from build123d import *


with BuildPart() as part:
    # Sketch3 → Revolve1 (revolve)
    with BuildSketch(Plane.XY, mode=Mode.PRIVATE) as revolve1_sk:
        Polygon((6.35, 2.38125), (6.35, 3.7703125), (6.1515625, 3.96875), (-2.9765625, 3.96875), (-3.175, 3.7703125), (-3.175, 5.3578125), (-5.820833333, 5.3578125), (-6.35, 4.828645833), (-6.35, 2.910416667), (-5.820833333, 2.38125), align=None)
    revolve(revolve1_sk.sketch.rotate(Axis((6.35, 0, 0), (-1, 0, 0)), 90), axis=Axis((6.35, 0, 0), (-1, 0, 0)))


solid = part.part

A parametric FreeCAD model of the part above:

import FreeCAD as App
import Part
import Sketcher
from FreeCAD import Vector
Q = App.Units.Quantity

doc = App.newDocument("Part")
body = doc.addObject("PartDesign::Body", "Body")

# Sketch on XY plane
sketch1 = body.newObject("Sketcher::SketchObject", "Sketch")
sketch1.AttachmentSupport = (doc.getObject("XY_Plane"), [""])
sketch1.MapMode = "FlatFace"
sketch1.addGeometry([
    Part.LineSegment(Vector(6.35, 2.38, 0), Vector(6.35, 3.77, 0)),  # 0
    Part.LineSegment(Vector(6.35, 3.77, 0), Vector(6.15, 3.97, 0)),  # 1
    Part.LineSegment(Vector(6.15, 3.97, 0), Vector(-2.98, 3.97, 0)),  # 2
    Part.LineSegment(Vector(-2.98, 3.97, 0), Vector(-3.17, 3.77, 0)),  # 3
    Part.LineSegment(Vector(-3.17, 3.77, 0), Vector(-3.17, 5.36, 0)),  # 4
    Part.LineSegment(Vector(-3.17, 5.36, 0), Vector(-5.82, 5.36, 0)),  # 5
    Part.LineSegment(Vector(-5.82, 5.36, 0), Vector(-6.35, 4.83, 0)),  # 6
    Part.LineSegment(Vector(-6.35, 4.83, 0), Vector(-6.35, 2.91, 0)),  # 7
    Part.LineSegment(Vector(-6.35, 2.91, 0), Vector(-5.82, 2.38, 0)),  # 8
    Part.LineSegment(Vector(-5.82, 2.38, 0), Vector(6.35, 2.38, 0)),  # 9
], False)
sketch1.addConstraint([
    Sketcher.Constraint("Coincident", 0, 2, 1, 1),
    Sketcher.Constraint("Coincident", 1, 2, 2, 1),
    Sketcher.Constraint("Coincident", 2, 2, 3, 1),
    Sketcher.Constraint("Coincident", 3, 2, 4, 1),
    Sketcher.Constraint("Coincident", 4, 2, 5, 1),
    Sketcher.Constraint("Coincident", 5, 2, 6, 1),
    Sketcher.Constraint("Coincident", 6, 2, 7, 1),
    Sketcher.Constraint("Coincident", 7, 2, 8, 1),
    Sketcher.Constraint("Coincident", 8, 2, 9, 1),
    Sketcher.Constraint("Coincident", 9, 2, 0, 1),
    Sketcher.Constraint("Vertical", 0),
    Sketcher.Constraint("Horizontal", 2),
    Sketcher.Constraint("Vertical", 4),
    Sketcher.Constraint("Horizontal", 5),
    Sketcher.Constraint("Vertical", 7),
    Sketcher.Constraint("Horizontal", 9),
    Sketcher.Constraint("Perpendicular", 1, 3),
    Sketcher.Constraint("Parallel", 3, 6),
    Sketcher.Constraint("Perpendicular", 6, 8),
    Sketcher.Constraint("Horizontal", 0, 2, 3, 2),
    Sketcher.Constraint("Vertical", 5, 2, 8, 2),
    Sketcher.Constraint("Equal", 1, 3),
    Sketcher.Constraint("DistanceX", 2, 2, 2, 1, Q("0.359375 in")),
    Sketcher.Constraint("DistanceY", 4, 1, 4, 2, Q("0.0625 in")),
    Sketcher.Constraint("DistanceX", -1, 1, 0, 2, Q("0.25 in")),
    Sketcher.Constraint("DistanceX", 6, 2, -1, 1, Q("0.25 in")),
    Sketcher.Constraint("DistanceY", -1, 1, 1, 2, Q("0.15625 in")),
    Sketcher.Constraint("DistanceX", 3, 2, -1, 1, Q("0.125 in")),
    Sketcher.Constraint("DistanceY", -1, 1, 8, 2, Q("0.09375 in")),
    Sketcher.Constraint("DistanceY", 7, 2, 7, 1, Q("1.918229 mm")),
])
revolution = body.newObject("PartDesign::Revolution", "Revolution")
revolution.Profile = sketch1
revolution.ReferenceAxis = (sketch1, ["H_Axis"])
revolution.Angle = 360

doc.recompute()
